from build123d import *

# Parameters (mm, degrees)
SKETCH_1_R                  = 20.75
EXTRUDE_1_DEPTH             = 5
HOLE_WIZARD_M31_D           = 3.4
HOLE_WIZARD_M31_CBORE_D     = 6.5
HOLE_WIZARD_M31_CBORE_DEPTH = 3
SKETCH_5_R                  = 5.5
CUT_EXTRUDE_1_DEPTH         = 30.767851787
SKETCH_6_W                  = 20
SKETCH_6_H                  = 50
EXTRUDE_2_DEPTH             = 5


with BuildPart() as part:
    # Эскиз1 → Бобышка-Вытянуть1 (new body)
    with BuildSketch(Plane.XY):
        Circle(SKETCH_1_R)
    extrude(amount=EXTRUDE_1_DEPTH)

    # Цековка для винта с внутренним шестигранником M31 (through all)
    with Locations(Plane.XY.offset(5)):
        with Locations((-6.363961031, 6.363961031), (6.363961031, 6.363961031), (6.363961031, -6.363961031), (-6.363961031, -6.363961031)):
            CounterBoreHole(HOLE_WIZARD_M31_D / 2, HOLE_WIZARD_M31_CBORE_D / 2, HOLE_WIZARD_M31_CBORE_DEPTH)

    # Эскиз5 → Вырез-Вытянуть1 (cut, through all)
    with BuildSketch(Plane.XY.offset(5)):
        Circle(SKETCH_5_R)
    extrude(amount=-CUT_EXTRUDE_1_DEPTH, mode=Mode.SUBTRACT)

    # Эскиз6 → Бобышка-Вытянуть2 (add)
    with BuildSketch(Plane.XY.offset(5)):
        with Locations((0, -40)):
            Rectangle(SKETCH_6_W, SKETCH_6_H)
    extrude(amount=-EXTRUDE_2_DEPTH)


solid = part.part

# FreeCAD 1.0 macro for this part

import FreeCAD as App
import Part
import Sketcher

V = App.Vector


def add_polygon(sketch, points):
    """Adds a closed chain of lines whose ends are joined by coincident constraints."""
    first, n = sketch.GeometryCount, len(points)
    for a, b in zip(points, points[1:] + points[:1]):
        sketch.addGeometry(Part.LineSegment(App.Vector(*a, 0), App.Vector(*b, 0)), False)
    for i in range(n):
        sketch.addConstraint(Sketcher.Constraint("Coincident", first + i, 2, first + (i + 1) % n, 1))

doc = App.newDocument("Part")
params = doc.addObject("Spreadsheet::Sheet", "Params")
for row, (alias, value) in enumerate([
    ("sketch1_diameter", "41.5 mm"),
    ("pad1_length", "5 mm"),
    ("sketch2_diameter", "3.4 mm"),
    ("hole_diameter", "3.4 mm"),
    ("hole_cbore_diameter", "6.5 mm"),
    ("hole_cbore_depth", "3 mm"),
    ("sketch3_diameter", "11 mm"),
    ("sketch4_width", "20 mm"),
    ("sketch4_height", "50 mm"),
    ("pad2_length", "5 mm"),
], start=1):
    params.set(f"A{row}", alias)
    params.set(f"B{row}", "=" + value)
    params.setAlias(f"B{row}", alias)

body = doc.addObject("PartDesign::Body", "Body")

sketch1 = doc.addObject("Sketcher::SketchObject", "Sketch")
body.addObject(sketch1)
sketch1.AttachmentSupport = (doc.XY_Plane, [""])
sketch1.MapMode = "FlatFace"
sketch1.addGeometry(Part.Circle(V(0, 0, 0), V(0, 0, 1), 21), False)
sketch1.addConstraint([
    Sketcher.Constraint("Coincident", 0, 3, -1, 1),
    Sketcher.Constraint("Diameter", 0, 41.5),
])
sketch1.setExpression("Constraints[1]", "Params.sketch1_diameter")
pad1 = doc.addObject("PartDesign::Pad", "Pad")
body.addObject(pad1)
pad1.Profile = sketch1
pad1.setExpression("Length", "Params.pad1_length")

sketch2 = doc.addObject("Sketcher::SketchObject", "Sketch001")
body.addObject(sketch2)
sketch2.AttachmentSupport = (doc.XY_Plane, [""])
sketch2.MapMode = "FlatFace"
sketch2.AttachmentOffset = App.Placement(V(0, 0, 5), App.Rotation())
sketch2.addGeometry([
    Part.Circle(V(-6.4, 6.4, 0), V(0, 0, 1), 1.7),
    Part.Circle(V(6.4, 6.4, 0), V(0, 0, 1), 1.7),
    Part.Circle(V(6.4, -6.4, 0), V(0, 0, 1), 1.7),
    Part.Circle(V(-6.4, -6.4, 0), V(0, 0, 1), 1.7),
], False)
sketch2.addConstraint([
    Sketcher.Constraint("Equal", 0, 1),
    Sketcher.Constraint("Equal", 1, 2),
    Sketcher.Constraint("Equal", 2, 3),
    Sketcher.Constraint("Symmetric", 0, 3, 2, 3, -1, 1),
    Sketcher.Constraint("Symmetric", 1, 3, 3, 3, -1, 1),
    Sketcher.Constraint("Symmetric", 0, 3, 1, 3, -2),
    Sketcher.Constraint("Diameter", 0, 3.4),
    Sketcher.Constraint("DistanceX", 0, 3, -1, 1, 6.363961),
    Sketcher.Constraint("DistanceY", -1, 1, 0, 3, 6.363961),
])
sketch2.setExpression("Constraints[6]", "Params.sketch2_diameter")
doc.recompute()
hole = doc.addObject("PartDesign::Hole", "Hole")
body.addObject(hole)
hole.Profile = sketch2
hole.ThreadType = "None"
hole.setExpression("Diameter", "Params.hole_diameter")
hole.DepthType = "ThroughAll"
hole.HoleCutType = "Counterbore"
hole.setExpression("HoleCutDiameter", "Params.hole_cbore_diameter")
hole.setExpression("HoleCutDepth", "Params.hole_cbore_depth")

sketch3 = doc.addObject("Sketcher::SketchObject", "Sketch002")
body.addObject(sketch3)
sketch3.AttachmentSupport = (doc.XY_Plane, [""])
sketch3.MapMode = "FlatFace"
sketch3.AttachmentOffset = App.Placement(V(0, 0, 5), App.Rotation())
sketch3.addGeometry(Part.Circle(V(0, 0, 0), V(0, 0, 1), 6), False)
sketch3.addConstraint([
    Sketcher.Constraint("Coincident", 0, 3, -1, 1),
    Sketcher.Constraint("Diameter", 0, 11.0),
])
sketch3.setExpression("Constraints[1]", "Params.sketch3_diameter")
pocket1 = doc.addObject("PartDesign::Pocket", "Pocket")
body.addObject(pocket1)
pocket1.Profile = sketch3
pocket1.Type = "ThroughAll"

sketch4 = doc.addObject("Sketcher::SketchObject", "Sketch003")
body.addObject(sketch4)
sketch4.AttachmentSupport = (doc.XY_Plane, [""])
sketch4.MapMode = "FlatFace"
sketch4.AttachmentOffset = App.Placement(V(0, 0, 5), App.Rotation())
add_polygon(sketch4, [(-10, -15), (-10, -65), (10, -65), (10, -15)])
sketch4.addConstraint([
    Sketcher.Constraint("Vertical", 0),
    Sketcher.Constraint("Horizontal", 1),
    Sketcher.Constraint("Vertical", 2),
    Sketcher.Constraint("Horizontal", 3),
    Sketcher.Constraint("DistanceX", 1, 1, 1, 2, 20.0),
    Sketcher.Constraint("DistanceY", 0, 2, 0, 1, 50.0),
    Sketcher.Constraint("DistanceX", 0, 2, -1, 1, 10.0),
    Sketcher.Constraint("DistanceY", 0, 2, -1, 1, 65.0),
])
sketch4.setExpression("Constraints[8]", "Params.sketch4_width")
sketch4.setExpression("Constraints[9]", "Params.sketch4_height")
pad2 = doc.addObject("PartDesign::Pad", "Pad001")
body.addObject(pad2)
pad2.Profile = sketch4
pad2.setExpression("Length", "Params.pad2_length")
pad2.Reversed = True

doc.recompute()
